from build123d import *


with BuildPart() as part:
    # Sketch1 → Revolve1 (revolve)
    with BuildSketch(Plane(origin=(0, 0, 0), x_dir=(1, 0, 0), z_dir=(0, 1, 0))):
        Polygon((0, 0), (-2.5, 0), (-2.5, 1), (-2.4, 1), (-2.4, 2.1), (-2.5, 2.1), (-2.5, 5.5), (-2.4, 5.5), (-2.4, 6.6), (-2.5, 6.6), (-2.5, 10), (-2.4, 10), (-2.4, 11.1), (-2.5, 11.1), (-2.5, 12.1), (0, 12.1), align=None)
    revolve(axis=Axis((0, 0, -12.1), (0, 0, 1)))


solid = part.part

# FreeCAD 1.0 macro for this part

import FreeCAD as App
import Part
import Sketcher
Q = App.Units.Quantity

doc = App.newDocument("Part")
body = doc.addObject("PartDesign::Body", "Body")

sketch1 = body.newObject("Sketcher::SketchObject", "Sketch")
sketch1.AttachmentSupport = (doc.getObject("XZ_Plane"), [""])
sketch1.MapMode = "FlatFace"
sketch1.addGeometry(Part.LineSegment(App.Vector(-2.5, 0, 0), App.Vector(0, 0, 0)), False)
sketch1.addGeometry(Part.LineSegment(App.Vector(0, 0, 0), App.Vector(0, -12.1, 0)), False)
sketch1.addGeometry(Part.LineSegment(App.Vector(0, -12.1, 0), App.Vector(-2.5, -12.1, 0)), False)
sketch1.addGeometry(Part.LineSegment(App.Vector(-2.5, -12.1, 0), App.Vector(-2.5, -11.1, 0)), False)
sketch1.addGeometry(Part.LineSegment(App.Vector(-2.5, -11.1, 0), App.Vector(-2.4, -11.1, 0)), False)
sketch1.addGeometry(Part.LineSegment(App.Vector(-2.4, -11.1, 0), App.Vector(-2.4, -10, 0)), False)
sketch1.addGeometry(Part.LineSegment(App.Vector(-2.4, -10, 0), App.Vector(-2.5, -10, 0)), False)
sketch1.addGeometry(Part.LineSegment(App.Vector(-2.5, -10, 0), App.Vector(-2.5, -6.6, 0)), False)
sketch1.addGeometry(Part.LineSegment(App.Vector(-2.5, -6.6, 0), App.Vector(-2.4, -6.6, 0)), False)
sketch1.addGeometry(Part.LineSegment(App.Vector(-2.4, -6.6, 0), App.Vector(-2.4, -5.5, 0)), False)
sketch1.addGeometry(Part.LineSegment(App.Vector(-2.4, -5.5, 0), App.Vector(-2.5, -5.5, 0)), False)
sketch1.addGeometry(Part.LineSegment(App.Vector(-2.5, -5.5, 0), App.Vector(-2.5, -2.1, 0)), False)
sketch1.addGeometry(Part.LineSegment(App.Vector(-2.5, -2.1, 0), App.Vector(-2.4, -2.1, 0)), False)
sketch1.addGeometry(Part.LineSegment(App.Vector(-2.4, -2.1, 0), App.Vector(-2.4, -1, 0)), False)
sketch1.addGeometry(Part.LineSegment(App.Vector(-2.4, -1, 0), App.Vector(-2.5, -1, 0)), False)
sketch1.addGeometry(Part.LineSegment(App.Vector(-2.5, -1, 0), App.Vector(-2.5, 0, 0)), False)
sketch1.addConstraint(Sketcher.Constraint("Coincident", 0, 2, 1, 1))
sketch1.addConstraint(Sketcher.Constraint("Coincident", 1, 2, 2, 1))
sketch1.addConstraint(Sketcher.Constraint("Coincident", 2, 2, 3, 1))
sketch1.addConstraint(Sketcher.Constraint("Coincident", 3, 2, 4, 1))
sketch1.addConstraint(Sketcher.Constraint("Coincident", 4, 2, 5, 1))
sketch1.addConstraint(Sketcher.Constraint("Coincident", 5, 2, 6, 1))
sketch1.addConstraint(Sketcher.Constraint("Coincident", 6, 2, 7, 1))
sketch1.addConstraint(Sketcher.Constraint("Coincident", 7, 2, 8, 1))
sketch1.addConstraint(Sketcher.Constraint("Coincident", 8, 2, 9, 1))
sketch1.addConstraint(Sketcher.Constraint("Coincident", 9, 2, 10, 1))
sketch1.addConstraint(Sketcher.Constraint("Coincident", 10, 2, 11, 1))
sketch1.addConstraint(Sketcher.Constraint("Coincident", 11, 2, 12, 1))
sketch1.addConstraint(Sketcher.Constraint("Coincident", 12, 2, 13, 1))
sketch1.addConstraint(Sketcher.Constraint("Coincident", 13, 2, 14, 1))
sketch1.addConstraint(Sketcher.Constraint("Coincident", 14, 2, 15, 1))
sketch1.addConstraint(Sketcher.Constraint("Coincident", 15, 2, 0, 1))
sketch1.addConstraint(Sketcher.Constraint("Horizontal", 0))
sketch1.addConstraint(Sketcher.Constraint("Vertical", 1))
sketch1.addConstraint(Sketcher.Constraint("Horizontal", 2))
sketch1.addConstraint(Sketcher.Constraint("Vertical", 3))
sketch1.addConstraint(Sketcher.Constraint("Horizontal", 4))
sketch1.addConstraint(Sketcher.Constraint("Vertical", 5))
sketch1.addConstraint(Sketcher.Constraint("Horizontal", 6))
sketch1.addConstraint(Sketcher.Constraint("Vertical", 7))
sketch1.addConstraint(Sketcher.Constraint("Horizontal", 8))
sketch1.addConstraint(Sketcher.Constraint("Vertical", 9))
sketch1.addConstraint(Sketcher.Constraint("Horizontal", 10))
sketch1.addConstraint(Sketcher.Constraint("Vertical", 11))
sketch1.addConstraint(Sketcher.Constraint("Horizontal", 12))
sketch1.addConstraint(Sketcher.Constraint("Vertical", 13))
sketch1.addConstraint(Sketcher.Constraint("Horizontal", 14))
sketch1.addConstraint(Sketcher.Constraint("Vertical", 15))
sketch1.addConstraint(Sketcher.Constraint("Coincident", 0, 2, -1, 1))
sketch1.addConstraint(Sketcher.Constraint("Vertical", 3, 2, 6, 2))
sketch1.addConstraint(Sketcher.Constraint("Vertical", 5, 2, 8, 2))
sketch1.addConstraint(Sketcher.Constraint("Vertical", 7, 2, 10, 2))
sketch1.addConstraint(Sketcher.Constraint("Vertical", 9, 2, 12, 2))
sketch1.addConstraint(Sketcher.Constraint("Vertical", 11, 2, 14, 2))
sketch1.addConstraint(Sketcher.Constraint("Equal", 5, 9))
sketch1.addConstraint(Sketcher.Constraint("Equal", 7, 11))
sketch1.addConstraint(Sketcher.Constraint("Equal", 9, 13))
sketch1.addConstraint(Sketcher.Constraint("Equal", 3, 15))
sketch1.addConstraint(Sketcher.Constraint("DistanceY", 3, 1, 3, 2, Q("1 mm")))
sketch1.addConstraint(Sketcher.Constraint("DistanceX", 0, 1, 0, 2, Q("2.5 mm")))
sketch1.addConstraint(Sketcher.Constraint("DistanceX", 4, 1, 4, 2, Q("0.1 mm")))
sketch1.addConstraint(Sketcher.Constraint("DistanceY", 1, 2, 1, 1, Q("12.1 mm")))
sketch1.addConstraint(Sketcher.Constraint("DistanceY", 5, 1, 5, 2, Q("1.1 mm")))
revolution = body.newObject("PartDesign::Revolution", "Revolution")
revolution.Profile = sketch1
revolution.ReferenceAxis = (sketch1, ["V_Axis"])
revolution.Angle = 360

doc.recompute()
